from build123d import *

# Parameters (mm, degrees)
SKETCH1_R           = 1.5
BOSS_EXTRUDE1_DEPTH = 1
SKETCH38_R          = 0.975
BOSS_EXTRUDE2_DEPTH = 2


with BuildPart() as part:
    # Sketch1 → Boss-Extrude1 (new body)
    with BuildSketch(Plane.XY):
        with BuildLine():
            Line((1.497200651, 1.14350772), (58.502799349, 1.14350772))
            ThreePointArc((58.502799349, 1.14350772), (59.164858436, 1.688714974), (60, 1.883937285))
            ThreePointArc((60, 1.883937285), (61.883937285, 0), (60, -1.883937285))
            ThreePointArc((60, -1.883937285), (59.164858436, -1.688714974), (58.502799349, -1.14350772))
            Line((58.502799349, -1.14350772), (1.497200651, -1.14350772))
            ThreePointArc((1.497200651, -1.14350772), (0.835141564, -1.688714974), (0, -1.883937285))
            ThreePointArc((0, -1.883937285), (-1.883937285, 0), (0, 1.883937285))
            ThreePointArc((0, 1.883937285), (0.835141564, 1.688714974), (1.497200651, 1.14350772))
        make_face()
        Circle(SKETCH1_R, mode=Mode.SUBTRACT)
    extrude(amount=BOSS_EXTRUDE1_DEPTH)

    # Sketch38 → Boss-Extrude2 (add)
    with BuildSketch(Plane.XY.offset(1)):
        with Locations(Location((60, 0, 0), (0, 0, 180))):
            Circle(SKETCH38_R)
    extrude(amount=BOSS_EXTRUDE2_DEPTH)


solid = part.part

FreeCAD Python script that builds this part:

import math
import FreeCAD as App
import Part
import Sketcher
Q = App.Units.Quantity

doc = App.newDocument("Part")
params = doc.addObject("Spreadsheet::Sheet", "Params")
for row, (alias, value) in enumerate([
    ("sketch1_diameter", "3 mm"),
    ("pad1_length", "1 mm"),
    ("sketch2_diameter", "1.95 mm"),
    ("pad2_length", "2 mm"),
], start=1):
    params.set(f"A{row}", alias)
    params.set(f"B{row}", "=" + value)
    params.setAlias(f"B{row}", alias)

body = doc.addObject("PartDesign::Body", "Body")

sketch1 = body.newObject("Sketcher::SketchObject", "Sketch")
sketch1.AttachmentSupport = (doc.getObject("XY_Plane"), [""])
sketch1.MapMode = "FlatFace"
sketch1.addGeometry([
    Part.LineSegment(App.Vector(58.5, 1.1, 0), App.Vector(1.5, 1.1, 0)),
    Part.ArcOfCircle(Part.Circle(App.Vector(0, 0, 0), App.Vector(0, 0, 1), 1.9), math.radians(37), math.radians(90)),
    Part.ArcOfCircle(Part.Circle(App.Vector(0, 0, 0), App.Vector(0, 0, 1), 1.9), math.radians(90), math.radians(270)),
    Part.ArcOfCircle(Part.Circle(App.Vector(0, 0, 0), App.Vector(0, 0, 1), 1.9), math.radians(-90), math.radians(-37)),
    Part.LineSegment(App.Vector(1.5, -1.1, 0), App.Vector(58.5, -1.1, 0)),
    Part.ArcOfCircle(Part.Circle(App.Vector(60, 0, 0), App.Vector(0, 0, 1), 1.9), math.radians(-143), math.radians(-90)),
    Part.ArcOfCircle(Part.Circle(App.Vector(60, 0, 0), App.Vector(0, 0, 1), 1.9), math.radians(-90), math.radians(90)),
    Part.ArcOfCircle(Part.Circle(App.Vector(60, 0, 0), App.Vector(0, 0, 1), 1.9), math.radians(90), math.radians(143)),
    Part.Circle(App.Vector(0, 0, 0), App.Vector(0, 0, 1), 1.5),
], False)
sketch1.addConstraint([
    Sketcher.Constraint("Coincident", 0, 2, 1, 1),
    Sketcher.Constraint("Tangent", 1, 2, 2, 1),
    Sketcher.Constraint("Tangent", 2, 2, 3, 1),
    Sketcher.Constraint("Coincident", 3, 2, 4, 1),
    Sketcher.Constraint("Coincident", 4, 2, 5, 1),
    Sketcher.Constraint("Tangent", 5, 2, 6, 1),
    Sketcher.Constraint("Tangent", 6, 2, 7, 1),
    Sketcher.Constraint("Coincident", 7, 2, 0, 1),
    Sketcher.Constraint("Horizontal", 0),
    Sketcher.Constraint("Horizontal", 4),
    Sketcher.Constraint("Coincident", 1, 3, -1, 1),
    Sketcher.Constraint("Coincident", 8, 3, -1, 1),
    Sketcher.Constraint("Equal", 1, 2),
    Sketcher.Constraint("Equal", 2, 3),
    Sketcher.Constraint("Equal", 3, 5),
    Sketcher.Constraint("Equal", 5, 6),
    Sketcher.Constraint("Equal", 6, 7),
    Sketcher.Constraint("Symmetric", 5, 2, 6, 2, -1),
    Sketcher.Constraint("PointOnObject", 1, 2, -2),
    Sketcher.Constraint("PointOnObject", 2, 2, -2),
    Sketcher.Constraint("Vertical", 0, 2, 3, 2),
    Sketcher.Constraint("Vertical", 7, 3, 5, 2),
    Sketcher.Constraint("Diameter", 8, Q("3 mm")),
    Sketcher.Constraint("DistanceX", -1, 1, 5, 3, Q("60 mm")),
    Sketcher.Constraint("DistanceX", 0, 2, 0, 1, Q("57.005599 mm")),
    Sketcher.Constraint("Radius", 1, Q("1.883937 mm")),
])
sketch1.setExpression("Constraints[22]", "Params.sketch1_diameter")
pad1 = body.newObject("PartDesign::Pad", "Pad")
pad1.Profile = sketch1
pad1.setExpression("Length", "Params.pad1_length")

sketch2 = body.newObject("Sketcher::SketchObject", "Sketch001")
sketch2.AttachmentSupport = (doc.getObject("XY_Plane"), [""])
sketch2.MapMode = "FlatFace"
sketch2.AttachmentOffset = App.Placement(App.Vector(0, 0, 1), App.Rotation())
sketch2.addGeometry(Part.Circle(App.Vector(60, 0, 0), App.Vector(0, 0, 1), 1), False)
sketch2.addConstraint([
    Sketcher.Constraint("PointOnObject", 0, 3, -1),
    Sketcher.Constraint("Diameter", 0, Q("1.95 mm")),
    Sketcher.Constraint("DistanceX", -1, 1, 0, 3, Q("60 mm")),
])
sketch2.setExpression("Constraints[1]", "Params.sketch2_diameter")
pad2 = body.newObject("PartDesign::Pad", "Pad001")
pad2.Profile = sketch2
pad2.setExpression("Length", "Params.pad2_length")

doc.recompute()
